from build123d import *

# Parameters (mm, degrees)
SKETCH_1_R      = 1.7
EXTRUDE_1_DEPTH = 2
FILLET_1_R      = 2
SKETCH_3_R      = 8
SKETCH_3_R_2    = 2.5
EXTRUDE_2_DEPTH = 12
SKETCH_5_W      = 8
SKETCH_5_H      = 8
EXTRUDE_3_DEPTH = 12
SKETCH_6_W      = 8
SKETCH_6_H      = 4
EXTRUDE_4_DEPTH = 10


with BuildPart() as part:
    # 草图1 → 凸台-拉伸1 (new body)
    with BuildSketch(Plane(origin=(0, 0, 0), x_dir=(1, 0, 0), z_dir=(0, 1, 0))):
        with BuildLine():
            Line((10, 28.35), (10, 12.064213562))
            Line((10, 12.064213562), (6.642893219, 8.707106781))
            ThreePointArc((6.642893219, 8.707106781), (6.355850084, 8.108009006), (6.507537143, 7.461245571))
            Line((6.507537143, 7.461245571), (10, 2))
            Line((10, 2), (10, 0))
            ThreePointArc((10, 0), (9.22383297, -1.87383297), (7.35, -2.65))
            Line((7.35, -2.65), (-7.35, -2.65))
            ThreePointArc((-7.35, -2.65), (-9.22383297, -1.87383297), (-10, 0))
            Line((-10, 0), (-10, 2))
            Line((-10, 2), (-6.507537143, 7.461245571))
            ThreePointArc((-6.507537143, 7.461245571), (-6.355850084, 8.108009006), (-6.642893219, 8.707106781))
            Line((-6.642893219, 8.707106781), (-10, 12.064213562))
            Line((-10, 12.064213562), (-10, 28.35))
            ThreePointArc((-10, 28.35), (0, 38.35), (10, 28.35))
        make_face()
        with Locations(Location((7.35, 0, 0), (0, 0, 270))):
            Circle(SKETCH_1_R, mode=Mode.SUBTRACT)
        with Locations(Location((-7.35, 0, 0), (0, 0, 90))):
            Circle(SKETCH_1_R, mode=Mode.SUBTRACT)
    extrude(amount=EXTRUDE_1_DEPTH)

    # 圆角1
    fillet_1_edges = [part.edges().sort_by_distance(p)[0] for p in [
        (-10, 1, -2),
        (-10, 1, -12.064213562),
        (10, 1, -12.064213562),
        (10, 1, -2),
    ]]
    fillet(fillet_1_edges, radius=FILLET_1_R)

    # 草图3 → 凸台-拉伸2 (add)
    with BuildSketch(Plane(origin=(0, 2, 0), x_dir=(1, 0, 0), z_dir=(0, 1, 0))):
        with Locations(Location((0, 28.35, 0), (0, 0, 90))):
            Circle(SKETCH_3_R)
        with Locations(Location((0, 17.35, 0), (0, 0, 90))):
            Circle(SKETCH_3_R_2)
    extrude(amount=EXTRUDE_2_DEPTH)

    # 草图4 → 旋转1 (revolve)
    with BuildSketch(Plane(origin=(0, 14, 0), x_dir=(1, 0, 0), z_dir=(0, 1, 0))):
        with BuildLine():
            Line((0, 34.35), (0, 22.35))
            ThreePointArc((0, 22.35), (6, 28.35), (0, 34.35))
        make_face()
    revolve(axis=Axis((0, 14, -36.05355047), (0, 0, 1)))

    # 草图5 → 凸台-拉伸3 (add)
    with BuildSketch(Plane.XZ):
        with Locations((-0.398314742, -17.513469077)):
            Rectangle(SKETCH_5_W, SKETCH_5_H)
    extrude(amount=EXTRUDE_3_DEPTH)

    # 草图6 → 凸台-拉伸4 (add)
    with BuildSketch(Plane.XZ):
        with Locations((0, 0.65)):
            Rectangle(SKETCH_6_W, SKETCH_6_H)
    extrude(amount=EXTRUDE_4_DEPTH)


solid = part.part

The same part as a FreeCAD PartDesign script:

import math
import FreeCAD as App
import Part
import Sketcher


def edges_at(feature, points):
    """Names of the edges that pass closest to the given points."""
    edges = feature.Shape.Edges
    near = lambda p: min(range(len(edges)), key=lambda i: edges[i].distToShape(Part.Vertex(*p))[0])
    return sorted({f"Edge{near(p) + 1}" for p in points})


def add_polygon(sketch, points):
    """Adds a closed chain of lines whose ends are joined by coincident constraints."""
    first, n = sketch.GeometryCount, len(points)
    for a, b in zip(points, points[1:] + points[:1]):
        sketch.addGeometry(Part.LineSegment(App.Vector(*a, 0), App.Vector(*b, 0)), False)
    for i in range(n):
        sketch.addConstraint(Sketcher.Constraint("Coincident", first + i, 2, first + (i + 1) % n, 1))

doc = App.newDocument("Part")
params = doc.addObject("Spreadsheet::Sheet", "Params")
for row, (alias, value) in enumerate([
    ("sketch1_radius", "10 mm"),
    ("sketch1_radius2", "1 mm"),
    ("sketch1_diameter", "3.4 mm"),
    ("sketch1_height", "2 mm"),
    ("sketch1_radius3", "2.65 mm"),
    ("pad1_length", "2 mm"),
    ("fillet_radius", "2 mm"),
    ("sketch2_diameter", "16 mm"),
    ("sketch2_diameter2", "5 mm"),
    ("pad2_length", "12 mm"),
    ("sketch3_radius", "6 mm"),
    ("revolution_angle", "360 deg"),
    ("sketch4_width", "8 mm"),
    ("pad3_length", "12 mm"),
    ("sketch5_width", "8 mm"),
    ("sketch5_height", "4 mm"),
    ("pad4_length", "10 mm"),
], start=1):
    params.set(f"A{row}", alias)
    params.set(f"B{row}", "=" + value)
    params.setAlias(f"B{row}", alias)

body = doc.addObject("PartDesign::Body", "Body")

# Sketch on XZ plane
sketch1 = body.newObject("Sketcher::SketchObject", "Sketch")
sketch1.AttachmentSupport = (doc.getObject("XZ_Plane"), [""])
sketch1.MapMode = "FlatFace"
sketch1.addGeometry([
    Part.LineSegment(App.Vector(10, -12.1, 0), App.Vector(10, -28.4, 0)),  # 0
    Part.ArcOfCircle(Part.Circle(App.Vector(0, -28.4, 0), App.Vector(0, 0, 1), 10), math.radians(180), math.radians(360)),  # 1
    Part.LineSegment(App.Vector(-10, -28.4, 0), App.Vector(-10, -12.1, 0)),  # 2
    Part.LineSegment(App.Vector(-10, -12.1, 0), App.Vector(-6.6, -8.7, 0)),  # 3
    Part.ArcOfCircle(Part.Circle(App.Vector(-7.3, -8, 0), App.Vector(0, 0, 1), 1), math.radians(-45), math.radians(33)),  # 4
    Part.LineSegment(App.Vector(-6.5, -7.5, 0), App.Vector(-10, -2, 0)),  # 5
    Part.LineSegment(App.Vector(-10, -2, 0), App.Vector(-10, 0, 0)),  # 6
    Part.ArcOfCircle(Part.Circle(App.Vector(-7.3, 0, 0), App.Vector(0, 0, 1), 2.6), math.radians(90), math.radians(180)),  # 7
    Part.LineSegment(App.Vector(-7.3, 2.6, 0), App.Vector(7.3, 2.6, 0)),  # 8
    Part.ArcOfCircle(Part.Circle(App.Vector(7.3, 0, 0), App.Vector(0, 0, 1), 2.6), math.radians(0), math.radians(90)),  # 9
    Part.LineSegment(App.Vector(10, 0, 0), App.Vector(10, -2, 0)),  # 10
    Part.LineSegment(App.Vector(10, -2, 0), App.Vector(6.5, -7.5, 0)),  # 11
    Part.ArcOfCircle(Part.Circle(App.Vector(7.3, -8, 0), App.Vector(0, 0, 1), 1), math.radians(147), math.radians(225)),  # 12
    Part.LineSegment(App.Vector(6.6, -8.7, 0), App.Vector(10, -12.1, 0)),  # 13
    Part.Circle(App.Vector(7.3, 0, 0), App.Vector(0, 0, 1), 1.7),  # 14
    Part.Circle(App.Vector(-7.3, 0, 0), App.Vector(0, 0, 1), 1.7),  # 15
], False)
sketch1.addConstraint([
    Sketcher.Constraint("Tangent", 0, 2, 1, 2),
    Sketcher.Constraint("Tangent", 1, 1, 2, 1),
    Sketcher.Constraint("Coincident", 2, 2, 3, 1),
    Sketcher.Constraint("Tangent", 3, 2, 4, 1),
    Sketcher.Constraint("Tangent", 4, 2, 5, 1),
    Sketcher.Constraint("Coincident", 5, 2, 6, 1),
    Sketcher.Constraint("Tangent", 6, 2, 7, 2),
    Sketcher.Constraint("Tangent", 7, 1, 8, 1),
    Sketcher.Constraint("Tangent", 8, 2, 9, 2),
    Sketcher.Constraint("Tangent", 9, 1, 10, 1),
    Sketcher.Constraint("Coincident", 10, 2, 11, 1),
    Sketcher.Constraint("Tangent", 11, 2, 12, 1),
    Sketcher.Constraint("Tangent", 12, 2, 13, 1),
    Sketcher.Constraint("Coincident", 13, 2, 0, 1),
    Sketcher.Constraint("Vertical", 0),
    Sketcher.Constraint("Vertical", 2),
    Sketcher.Constraint("Vertical", 6),
    Sketcher.Constraint("Horizontal", 8),
    Sketcher.Constraint("Vertical", 10),
    Sketcher.Constraint("Coincident", 14, 3, 9, 3),
    Sketcher.Constraint("Coincident", 15, 3, 7, 3),
    Sketcher.Constraint("Equal", 7, 9),
    Sketcher.Constraint("Equal", 4, 12),
    Sketcher.Constraint("Equal", 14, 15),
    Sketcher.Constraint("Symmetric", 7, 3, 9, 3, -1, 1),
    Sketcher.Constraint("Symmetric", 4, 3, 12, 3, -2),
    Sketcher.Constraint("Symmetric", 2, 2, 13, 2, -2),
    Sketcher.Constraint("Perpendicular", 3, 13),
    Sketcher.Constraint("Horizontal", 5, 2, 10, 2),
    Sketcher.Constraint("Vertical", 4, 3, 7, 3),
    Sketcher.Constraint("Vertical", 2, 2, 5, 2),
    Sketcher.Constraint("Radius", 1, 10.0),
    Sketcher.Constraint("Radius", 4, 1.0),
    Sketcher.Constraint("Diameter", 14, 3.4),
    Sketcher.Constraint("DistanceY", 6, 1, 6, 2, 2.0),
    Sketcher.Constraint("Radius", 7, 2.65),
    Sketcher.Constraint("DistanceY", 4, 3, -1, 1, 8.0),
    Sketcher.Constraint("DistanceY", 1, 3, -1, 1, 28.35),
])
sketch1.setExpression("Constraints[31]", "Params.sketch1_radius")
sketch1.setExpression("Constraints[32]", "Params.sketch1_radius2")
sketch1.setExpression("Constraints[33]", "Params.sketch1_diameter")
sketch1.setExpression("Constraints[34]", "Params.sketch1_height")
sketch1.setExpression("Constraints[35]", "Params.sketch1_radius3")
pad1 = body.newObject("PartDesign::Pad", "Pad")
pad1.Profile = sketch1
pad1.setExpression("Length", "Params.pad1_length")
pad1.Reversed = True
doc.recompute()

fillet = body.newObject("PartDesign::Fillet", "Fillet")
fillet.Base = (pad1, edges_at(pad1, [
    (-10, 1, -2),
    (-10, 1, -12.064),
    (10, 1, -12.064),
    (10, 1, -2),
]))
fillet.setExpression("Radius", "Params.fillet_radius")

# Sketch on XZ plane
sketch2 = body.newObject("Sketcher::SketchObject", "Sketch001")
sketch2.AttachmentSupport = (doc.getObject("XZ_Plane"), [""])
sketch2.MapMode = "FlatFace"
sketch2.AttachmentOffset = App.Placement(App.Vector(0, 0, -2), App.Rotation())
sketch2.addGeometry([
    Part.Circle(App.Vector(0, -28.4, 0), App.Vector(0, 0, 1), 8),
    Part.Circle(App.Vector(0, -17.4, 0), App.Vector(0, 0, 1), 2.5),
], False)
sketch2.addConstraint([
    Sketcher.Constraint("PointOnObject", 0, 3, -2),
    Sketcher.Constraint("PointOnObject", 1, 3, -2),
    Sketcher.Constraint("Diameter", 0, 16.0),
    Sketcher.Constraint("Diameter", 1, 5.0),
    Sketcher.Constraint("DistanceY", 0, 3, 1, 3, 11.0),
    Sketcher.Constraint("DistanceY", 0, 3, -1, 1, 28.35),
])
sketch2.setExpression("Constraints[2]", "Params.sketch2_diameter")
sketch2.setExpression("Constraints[3]", "Params.sketch2_diameter2")
pad2 = body.newObject("PartDesign::Pad", "Pad001")
pad2.Profile = sketch2
pad2.setExpression("Length", "Params.pad2_length")
pad2.Reversed = True

# Sketch on XZ plane
sketch3 = body.newObject("Sketcher::SketchObject", "Sketch002")
sketch3.AttachmentSupport = (doc.getObject("XZ_Plane"), [""])
sketch3.MapMode = "FlatFace"
sketch3.AttachmentOffset = App.Placement(App.Vector(0, 0, -14), App.Rotation())
sketch3.addGeometry([
    Part.LineSegment(App.Vector(0, -34, 0), App.Vector(0, -22, 0)),
    Part.ArcOfCircle(Part.Circle(App.Vector(0, -28, 0), App.Vector(0, 0, 1), 6), math.radians(-90), math.radians(90)),
], False)
sketch3.addConstraint([
    Sketcher.Constraint("Coincident", 0, 1, 1, 1),
    Sketcher.Constraint("Coincident", 1, 2, 0, 2),
    Sketcher.Constraint("Vertical", 0),
    Sketcher.Constraint("PointOnObject", 1, 3, -2),
    Sketcher.Constraint("PointOnObject", 0, 1, -2),
    Sketcher.Constraint("Radius", 1, 6.0),
    Sketcher.Constraint("DistanceY", 1, 3, -1, 1, 28.35),
])
sketch3.setExpression("Constraints[5]", "Params.sketch3_radius")
revolution = body.newObject("PartDesign::Revolution", "Revolution")
revolution.Profile = sketch3
revolution.ReferenceAxis = (sketch3, ["V_Axis"])
revolution.setExpression("Angle", "Params.revolution_angle")

# Sketch on XZ plane
sketch4 = body.newObject("Sketcher::SketchObject", "Sketch003")
sketch4.AttachmentSupport = (doc.getObject("XZ_Plane"), [""])
sketch4.MapMode = "FlatFace"
add_polygon(sketch4, [(-4, -14), (-4, -22), (4, -22), (4, -14)])  # lines 0-3
sketch4.addConstraint([
    Sketcher.Constraint("Vertical", 0),
    Sketcher.Constraint("Horizontal", 1),
    Sketcher.Constraint("Vertical", 2),
    Sketcher.Constraint("Horizontal", 3),
    Sketcher.Constraint("Equal", 3, 0),
    Sketcher.Constraint("DistanceX", 1, 1, 1, 2, 8.0),
    Sketcher.Constraint("DistanceY", 0, 2, -1, 1, 21.513469),
    Sketcher.Constraint("DistanceX", 0, 2, -1, 1, 4.398315),
])
sketch4.setExpression("Constraints[9]", "Params.sketch4_width")
pad3 = body.newObject("PartDesign::Pad", "Pad002")
pad3.Profile = sketch4
pad3.setExpression("Length", "Params.pad3_length")

# Sketch on XZ plane
sketch5 = body.newObject("Sketcher::SketchObject", "Sketch004")
sketch5.AttachmentSupport = (doc.getObject("XZ_Plane"), [""])
sketch5.MapMode = "FlatFace"
add_polygon(sketch5, [(-4, 2.6), (-4, -1.4), (4, -1.4), (4, 2.6)])  # lines 0-3
sketch5.addConstraint([
    Sketcher.Constraint("Vertical", 0),
    Sketcher.Constraint("Horizontal", 1),
    Sketcher.Constraint("Vertical", 2),
    Sketcher.Constraint("Horizontal", 3),
    Sketcher.Constraint("DistanceX", 1, 1, 1, 2, 8.0),
    Sketcher.Constraint("DistanceY", 0, 2, 0, 1, 4.0),
    Sketcher.Constraint("DistanceX", 0, 2, -1, 1, 4.0),
    Sketcher.Constraint("DistanceY", 0, 2, -1, 1, 1.35),
])
sketch5.setExpression("Constraints[8]", "Params.sketch5_width")
sketch5.setExpression("Constraints[9]", "Params.sketch5_height")
pad4 = body.newObject("PartDesign::Pad", "Pad003")
pad4.Profile = sketch5
pad4.setExpression("Length", "Params.pad4_length")

doc.recompute()
